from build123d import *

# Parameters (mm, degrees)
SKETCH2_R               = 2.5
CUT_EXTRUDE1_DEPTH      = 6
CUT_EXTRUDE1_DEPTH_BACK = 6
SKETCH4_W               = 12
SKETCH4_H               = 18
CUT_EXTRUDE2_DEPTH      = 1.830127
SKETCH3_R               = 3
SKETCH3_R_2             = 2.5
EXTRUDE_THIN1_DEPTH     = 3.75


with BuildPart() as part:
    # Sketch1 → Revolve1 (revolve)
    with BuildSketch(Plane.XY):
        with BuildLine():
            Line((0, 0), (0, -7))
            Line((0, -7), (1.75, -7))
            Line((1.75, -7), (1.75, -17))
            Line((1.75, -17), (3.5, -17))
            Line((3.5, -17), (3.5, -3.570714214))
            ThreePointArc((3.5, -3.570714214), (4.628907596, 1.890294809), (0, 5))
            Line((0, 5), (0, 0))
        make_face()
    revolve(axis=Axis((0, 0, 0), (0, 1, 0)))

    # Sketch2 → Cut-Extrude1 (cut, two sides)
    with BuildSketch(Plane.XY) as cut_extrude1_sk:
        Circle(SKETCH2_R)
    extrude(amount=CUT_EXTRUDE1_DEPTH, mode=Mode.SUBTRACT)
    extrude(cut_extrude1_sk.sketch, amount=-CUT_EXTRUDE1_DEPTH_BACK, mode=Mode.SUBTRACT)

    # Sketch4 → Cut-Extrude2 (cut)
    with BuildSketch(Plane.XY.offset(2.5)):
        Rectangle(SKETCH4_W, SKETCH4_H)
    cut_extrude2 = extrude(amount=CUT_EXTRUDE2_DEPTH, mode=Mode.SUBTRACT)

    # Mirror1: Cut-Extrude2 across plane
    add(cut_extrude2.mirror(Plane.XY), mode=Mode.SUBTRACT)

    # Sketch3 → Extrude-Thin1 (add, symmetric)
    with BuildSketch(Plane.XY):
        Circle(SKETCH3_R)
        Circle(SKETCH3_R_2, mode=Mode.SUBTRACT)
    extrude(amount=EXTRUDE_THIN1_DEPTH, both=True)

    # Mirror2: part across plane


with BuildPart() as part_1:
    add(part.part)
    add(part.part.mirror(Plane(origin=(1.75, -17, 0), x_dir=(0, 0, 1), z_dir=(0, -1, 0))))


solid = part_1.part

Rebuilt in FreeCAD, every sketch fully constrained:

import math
import FreeCAD as App
import Part
import Sketcher

V = App.Vector
Q = App.Units.Quantity


def add_polygon(sketch, points):
    """Adds a closed chain of lines whose ends are joined by coincident constraints."""
    first, n = sketch.GeometryCount, len(points)
    for a, b in zip(points, points[1:] + points[:1]):
        sketch.addGeometry(Part.LineSegment(App.Vector(*a, 0), App.Vector(*b, 0)), False)
    for i in range(n):
        sketch.addConstraint(Sketcher.Constraint("Coincident", first + i, 2, first + (i + 1) % n, 1))

doc = App.newDocument("Part")
body = doc.addObject("PartDesign::Body", "Body")

# Sketch on XY plane
sketch1 = body.newObject("Sketcher::SketchObject", "Sketch")
sketch1.AttachmentSupport = (doc.getObject("XY_Plane"), [""])
sketch1.MapMode = "FlatFace"
sketch1.addGeometry(Part.LineSegment(V(0, -7, 0), V(1.8, -7, 0)), False)
sketch1.addGeometry(Part.LineSegment(V(1.8, -7, 0), V(1.8, -17, 0)), False)
sketch1.addGeometry(Part.LineSegment(V(1.8, -17, 0), V(3.5, -17, 0)), False)
sketch1.addGeometry(Part.LineSegment(V(3.5, -17, 0), V(3.5, -3.6, 0)), False)
sketch1.addGeometry(Part.ArcOfCircle(Part.Circle(V(0, 0, 0), V(0, 0, 1), 5), math.radians(-46), math.radians(90)), False)
sketch1.addGeometry(Part.LineSegment(V(0, 5, 0), V(0, -7, 0)), False)
sketch1.addConstraint(Sketcher.Constraint("Coincident", 0, 2, 1, 1))
sketch1.addConstraint(Sketcher.Constraint("Coincident", 1, 2, 2, 1))
sketch1.addConstraint(Sketcher.Constraint("Coincident", 2, 2, 3, 1))
sketch1.addConstraint(Sketcher.Constraint("Coincident", 3, 2, 4, 1))
sketch1.addConstraint(Sketcher.Constraint("Coincident", 4, 2, 5, 1))
sketch1.addConstraint(Sketcher.Constraint("Coincident", 5, 2, 0, 1))
sketch1.addConstraint(Sketcher.Constraint("Horizontal", 0))
sketch1.addConstraint(Sketcher.Constraint("Vertical", 1))
sketch1.addConstraint(Sketcher.Constraint("Horizontal", 2))
sketch1.addConstraint(Sketcher.Constraint("Vertical", 3))
sketch1.addConstraint(Sketcher.Constraint("Vertical", 5))
sketch1.addConstraint(Sketcher.Constraint("Coincident", 4, 3, -1, 1))
sketch1.addConstraint(Sketcher.Constraint("PointOnObject", 4, 2, -2))
sketch1.addConstraint(Sketcher.Constraint("Equal", 0, 2))
sketch1.addConstraint(Sketcher.Constraint("Radius", 4, Q("5 mm")))
sketch1.addConstraint(Sketcher.Constraint("DistanceY", 1, 2, 1, 1, Q("10 mm")))
sketch1.addConstraint(Sketcher.Constraint("DistanceY", 5, 2, 5, 1, Q("12 mm")))
sketch1.addConstraint(Sketcher.Constraint("DistanceX", 0, 1, 0, 2, Q("1.75 mm")))
revolution = body.newObject("PartDesign::Revolution", "Revolution")
revolution.Profile = sketch1
revolution.ReferenceAxis = (sketch1, ["V_Axis"])
revolution.Angle = 360

# Sketch on XY plane
sketch2 = body.newObject("Sketcher::SketchObject", "Sketch001")
sketch2.AttachmentSupport = (doc.getObject("XY_Plane"), [""])
sketch2.MapMode = "FlatFace"
sketch2.addGeometry(Part.Circle(V(0, 0, 0), V(0, 0, 1), 2.5), False)
sketch2.addConstraint(Sketcher.Constraint("Coincident", 0, 3, -1, 1))
sketch2.addConstraint(Sketcher.Constraint("Diameter", 0, Q("5 mm")))
pocket1 = body.newObject("PartDesign::Pocket", "Pocket")
pocket1.Profile = sketch2
pocket1.Type = "ThroughAll"
pocket1.Midplane = True

# Sketch on XY plane
sketch3 = body.newObject("Sketcher::SketchObject", "Sketch002")
sketch3.AttachmentSupport = (doc.getObject("XY_Plane"), [""])
sketch3.MapMode = "FlatFace"
sketch3.AttachmentOffset = App.Placement(V(0, 0, 2.5), App.Rotation())
add_polygon(sketch3, [(-6, 9), (-6, -9), (6, -9), (6, 9)])  # lines 0-3
sketch3.addConstraint(Sketcher.Constraint("Vertical", 0))
sketch3.addConstraint(Sketcher.Constraint("Horizontal", 1))
sketch3.addConstraint(Sketcher.Constraint("Vertical", 2))
sketch3.addConstraint(Sketcher.Constraint("Horizontal", 3))
sketch3.addConstraint(Sketcher.Constraint("Symmetric", 0, 2, 2, 2, -1, 1))
sketch3.addConstraint(Sketcher.Constraint("DistanceX", 1, 1, 1, 2, Q("12 mm")))
sketch3.addConstraint(Sketcher.Constraint("DistanceY", 0, 2, 0, 1, Q("18 mm")))
pocket2 = body.newObject("PartDesign::Pocket", "Pocket001")
pocket2.Profile = sketch3
pocket2.Length = 1.830127
pocket2.Reversed = True
doc.recompute()

mirrored = body.newObject("PartDesign::Mirrored", "Mirrored")
mirrored.Originals = [pocket2]
mirrored.MirrorPlane = (doc.getObject("XY_Plane"), [""])
body.Tip = mirrored

# Sketch on XY plane
sketch4 = body.newObject("Sketcher::SketchObject", "Sketch003")
sketch4.AttachmentSupport = (doc.getObject("XY_Plane"), [""])
sketch4.MapMode = "FlatFace"
sketch4.addGeometry(Part.Circle(V(0, 0, 0), V(0, 0, 1), 3), False)
sketch4.addGeometry(Part.Circle(V(0, 0, 0), V(0, 0, 1), 2.5), False)
sketch4.addConstraint(Sketcher.Constraint("Coincident", 0, 3, -1, 1))
sketch4.addConstraint(Sketcher.Constraint("Coincident", 1, 3, -1, 1))
sketch4.addConstraint(Sketcher.Constraint("Diameter", 0, Q("6 mm")))
sketch4.addConstraint(Sketcher.Constraint("Diameter", 1, Q("5 mm")))
pad1 = body.newObject("PartDesign::Pad", "Pad")
pad1.Profile = sketch4
pad1.Length = 7.5
pad1.Midplane = True
body2 = doc.addObject("PartDesign::Body", "Body001")
doc.recompute()

body2.BaseFeature = body
doc.recompute()

mirroring = doc.addObject("Part::Mirroring", "Mirroring")
mirroring.Source = body
mirroring.Base = V(1.75, -17, 0)
mirroring.Normal = V(0, -1, 0)
body3 = doc.addObject("PartDesign::Body", "Body002")
body3.BaseFeature = mirroring
boolean = body2.newObject("PartDesign::Boolean", "Boolean")
boolean.Type = "Fuse"
boolean.addObjects([body3])
doc.recompute()
mirroring.Visibility = False

doc.recompute()
